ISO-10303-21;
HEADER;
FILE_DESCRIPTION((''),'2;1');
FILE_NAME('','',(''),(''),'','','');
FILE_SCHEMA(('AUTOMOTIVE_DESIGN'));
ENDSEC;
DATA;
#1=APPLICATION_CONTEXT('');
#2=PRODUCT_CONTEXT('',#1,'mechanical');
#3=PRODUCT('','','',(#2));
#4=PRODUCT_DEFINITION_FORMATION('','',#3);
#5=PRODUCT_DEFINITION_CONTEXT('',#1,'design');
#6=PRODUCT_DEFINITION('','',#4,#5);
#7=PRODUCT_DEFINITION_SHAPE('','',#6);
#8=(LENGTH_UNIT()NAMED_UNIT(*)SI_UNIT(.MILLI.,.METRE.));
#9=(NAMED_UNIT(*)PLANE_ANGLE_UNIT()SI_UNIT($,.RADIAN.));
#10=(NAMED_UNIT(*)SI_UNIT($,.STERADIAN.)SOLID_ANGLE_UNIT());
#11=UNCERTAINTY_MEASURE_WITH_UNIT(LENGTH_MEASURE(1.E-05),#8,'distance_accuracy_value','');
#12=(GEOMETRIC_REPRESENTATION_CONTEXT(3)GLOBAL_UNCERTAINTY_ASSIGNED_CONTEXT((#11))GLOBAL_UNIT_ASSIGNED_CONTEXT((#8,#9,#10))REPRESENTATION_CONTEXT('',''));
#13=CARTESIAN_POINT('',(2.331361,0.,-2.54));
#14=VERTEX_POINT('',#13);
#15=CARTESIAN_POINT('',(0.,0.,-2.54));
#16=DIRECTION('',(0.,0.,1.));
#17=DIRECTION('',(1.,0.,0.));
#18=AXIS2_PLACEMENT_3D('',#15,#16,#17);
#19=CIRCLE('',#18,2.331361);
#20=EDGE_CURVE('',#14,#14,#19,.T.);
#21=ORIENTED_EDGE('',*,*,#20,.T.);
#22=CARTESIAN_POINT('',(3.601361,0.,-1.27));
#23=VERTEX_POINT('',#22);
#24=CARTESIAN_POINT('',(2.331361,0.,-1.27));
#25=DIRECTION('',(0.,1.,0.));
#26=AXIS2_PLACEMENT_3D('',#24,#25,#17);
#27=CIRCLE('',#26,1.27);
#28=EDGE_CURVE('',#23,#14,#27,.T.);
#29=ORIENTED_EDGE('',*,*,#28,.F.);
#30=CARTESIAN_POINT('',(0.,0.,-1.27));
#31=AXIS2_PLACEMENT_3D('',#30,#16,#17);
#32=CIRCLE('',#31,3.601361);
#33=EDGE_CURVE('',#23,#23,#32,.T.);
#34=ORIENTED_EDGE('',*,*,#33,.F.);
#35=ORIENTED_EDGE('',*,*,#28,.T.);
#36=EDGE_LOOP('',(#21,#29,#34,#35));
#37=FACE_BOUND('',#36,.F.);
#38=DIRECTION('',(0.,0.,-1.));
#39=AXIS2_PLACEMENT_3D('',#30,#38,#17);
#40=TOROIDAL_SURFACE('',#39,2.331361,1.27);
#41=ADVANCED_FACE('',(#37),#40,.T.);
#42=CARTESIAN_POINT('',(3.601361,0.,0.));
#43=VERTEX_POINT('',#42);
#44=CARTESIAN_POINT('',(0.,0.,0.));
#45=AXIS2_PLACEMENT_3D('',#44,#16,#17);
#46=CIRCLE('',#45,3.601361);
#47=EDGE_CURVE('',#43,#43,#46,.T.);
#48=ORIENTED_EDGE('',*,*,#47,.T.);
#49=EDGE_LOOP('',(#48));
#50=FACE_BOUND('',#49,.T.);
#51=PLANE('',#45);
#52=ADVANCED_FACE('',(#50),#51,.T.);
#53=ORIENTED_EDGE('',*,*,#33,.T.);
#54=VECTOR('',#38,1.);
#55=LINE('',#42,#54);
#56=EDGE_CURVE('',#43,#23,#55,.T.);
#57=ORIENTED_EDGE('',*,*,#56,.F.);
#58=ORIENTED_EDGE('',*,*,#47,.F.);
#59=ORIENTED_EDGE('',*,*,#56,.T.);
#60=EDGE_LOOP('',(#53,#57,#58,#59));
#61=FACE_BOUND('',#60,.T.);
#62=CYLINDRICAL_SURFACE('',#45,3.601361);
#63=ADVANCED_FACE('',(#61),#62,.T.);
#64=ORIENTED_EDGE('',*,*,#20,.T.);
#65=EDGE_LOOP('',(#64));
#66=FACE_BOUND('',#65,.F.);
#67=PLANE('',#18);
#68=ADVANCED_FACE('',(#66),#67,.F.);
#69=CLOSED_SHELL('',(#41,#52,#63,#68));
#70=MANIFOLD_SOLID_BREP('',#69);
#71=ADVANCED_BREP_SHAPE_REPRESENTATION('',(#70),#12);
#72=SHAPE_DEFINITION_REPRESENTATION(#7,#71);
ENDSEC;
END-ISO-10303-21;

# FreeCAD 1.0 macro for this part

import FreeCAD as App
import Part
import Sketcher
Q = App.Units.Quantity


def edges_at(feature, points):
    """Names of the edges that pass closest to the given points."""
    edges = feature.Shape.Edges
    near = lambda p: min(range(len(edges)), key=lambda i: edges[i].distToShape(Part.Vertex(*p))[0])
    return sorted({f"Edge{near(p) + 1}" for p in points})

doc = App.newDocument("Part")
body = doc.addObject("PartDesign::Body", "Body")

sketch1 = body.newObject("Sketcher::SketchObject", "Sketch")
sketch1.AttachmentSupport = (doc.getObject("XY_Plane"), [""])
sketch1.MapMode = "FlatFace"
sketch1.addGeometry(Part.Circle(App.Vector(0, 0, 0), App.Vector(0, 0, 1), 3.6), False)
sketch1.addConstraint([
    Sketcher.Constraint("Coincident", 0, 3, -1, 1),
    Sketcher.Constraint("Diameter", 0, Q("7.202722 mm")),
])
pad1 = body.newObject("PartDesign::Pad", "Pad")
pad1.Profile = sketch1
pad1.Length = Q("0.1 in")
pad1.Reversed = True
doc.recompute()

fillet = body.newObject("PartDesign::Fillet", "Fillet")
fillet.Base = (pad1, edges_at(pad1, [(-3.601, 0, -2.54)]))
fillet.Radius = Q("0.05 in")

doc.recompute()
